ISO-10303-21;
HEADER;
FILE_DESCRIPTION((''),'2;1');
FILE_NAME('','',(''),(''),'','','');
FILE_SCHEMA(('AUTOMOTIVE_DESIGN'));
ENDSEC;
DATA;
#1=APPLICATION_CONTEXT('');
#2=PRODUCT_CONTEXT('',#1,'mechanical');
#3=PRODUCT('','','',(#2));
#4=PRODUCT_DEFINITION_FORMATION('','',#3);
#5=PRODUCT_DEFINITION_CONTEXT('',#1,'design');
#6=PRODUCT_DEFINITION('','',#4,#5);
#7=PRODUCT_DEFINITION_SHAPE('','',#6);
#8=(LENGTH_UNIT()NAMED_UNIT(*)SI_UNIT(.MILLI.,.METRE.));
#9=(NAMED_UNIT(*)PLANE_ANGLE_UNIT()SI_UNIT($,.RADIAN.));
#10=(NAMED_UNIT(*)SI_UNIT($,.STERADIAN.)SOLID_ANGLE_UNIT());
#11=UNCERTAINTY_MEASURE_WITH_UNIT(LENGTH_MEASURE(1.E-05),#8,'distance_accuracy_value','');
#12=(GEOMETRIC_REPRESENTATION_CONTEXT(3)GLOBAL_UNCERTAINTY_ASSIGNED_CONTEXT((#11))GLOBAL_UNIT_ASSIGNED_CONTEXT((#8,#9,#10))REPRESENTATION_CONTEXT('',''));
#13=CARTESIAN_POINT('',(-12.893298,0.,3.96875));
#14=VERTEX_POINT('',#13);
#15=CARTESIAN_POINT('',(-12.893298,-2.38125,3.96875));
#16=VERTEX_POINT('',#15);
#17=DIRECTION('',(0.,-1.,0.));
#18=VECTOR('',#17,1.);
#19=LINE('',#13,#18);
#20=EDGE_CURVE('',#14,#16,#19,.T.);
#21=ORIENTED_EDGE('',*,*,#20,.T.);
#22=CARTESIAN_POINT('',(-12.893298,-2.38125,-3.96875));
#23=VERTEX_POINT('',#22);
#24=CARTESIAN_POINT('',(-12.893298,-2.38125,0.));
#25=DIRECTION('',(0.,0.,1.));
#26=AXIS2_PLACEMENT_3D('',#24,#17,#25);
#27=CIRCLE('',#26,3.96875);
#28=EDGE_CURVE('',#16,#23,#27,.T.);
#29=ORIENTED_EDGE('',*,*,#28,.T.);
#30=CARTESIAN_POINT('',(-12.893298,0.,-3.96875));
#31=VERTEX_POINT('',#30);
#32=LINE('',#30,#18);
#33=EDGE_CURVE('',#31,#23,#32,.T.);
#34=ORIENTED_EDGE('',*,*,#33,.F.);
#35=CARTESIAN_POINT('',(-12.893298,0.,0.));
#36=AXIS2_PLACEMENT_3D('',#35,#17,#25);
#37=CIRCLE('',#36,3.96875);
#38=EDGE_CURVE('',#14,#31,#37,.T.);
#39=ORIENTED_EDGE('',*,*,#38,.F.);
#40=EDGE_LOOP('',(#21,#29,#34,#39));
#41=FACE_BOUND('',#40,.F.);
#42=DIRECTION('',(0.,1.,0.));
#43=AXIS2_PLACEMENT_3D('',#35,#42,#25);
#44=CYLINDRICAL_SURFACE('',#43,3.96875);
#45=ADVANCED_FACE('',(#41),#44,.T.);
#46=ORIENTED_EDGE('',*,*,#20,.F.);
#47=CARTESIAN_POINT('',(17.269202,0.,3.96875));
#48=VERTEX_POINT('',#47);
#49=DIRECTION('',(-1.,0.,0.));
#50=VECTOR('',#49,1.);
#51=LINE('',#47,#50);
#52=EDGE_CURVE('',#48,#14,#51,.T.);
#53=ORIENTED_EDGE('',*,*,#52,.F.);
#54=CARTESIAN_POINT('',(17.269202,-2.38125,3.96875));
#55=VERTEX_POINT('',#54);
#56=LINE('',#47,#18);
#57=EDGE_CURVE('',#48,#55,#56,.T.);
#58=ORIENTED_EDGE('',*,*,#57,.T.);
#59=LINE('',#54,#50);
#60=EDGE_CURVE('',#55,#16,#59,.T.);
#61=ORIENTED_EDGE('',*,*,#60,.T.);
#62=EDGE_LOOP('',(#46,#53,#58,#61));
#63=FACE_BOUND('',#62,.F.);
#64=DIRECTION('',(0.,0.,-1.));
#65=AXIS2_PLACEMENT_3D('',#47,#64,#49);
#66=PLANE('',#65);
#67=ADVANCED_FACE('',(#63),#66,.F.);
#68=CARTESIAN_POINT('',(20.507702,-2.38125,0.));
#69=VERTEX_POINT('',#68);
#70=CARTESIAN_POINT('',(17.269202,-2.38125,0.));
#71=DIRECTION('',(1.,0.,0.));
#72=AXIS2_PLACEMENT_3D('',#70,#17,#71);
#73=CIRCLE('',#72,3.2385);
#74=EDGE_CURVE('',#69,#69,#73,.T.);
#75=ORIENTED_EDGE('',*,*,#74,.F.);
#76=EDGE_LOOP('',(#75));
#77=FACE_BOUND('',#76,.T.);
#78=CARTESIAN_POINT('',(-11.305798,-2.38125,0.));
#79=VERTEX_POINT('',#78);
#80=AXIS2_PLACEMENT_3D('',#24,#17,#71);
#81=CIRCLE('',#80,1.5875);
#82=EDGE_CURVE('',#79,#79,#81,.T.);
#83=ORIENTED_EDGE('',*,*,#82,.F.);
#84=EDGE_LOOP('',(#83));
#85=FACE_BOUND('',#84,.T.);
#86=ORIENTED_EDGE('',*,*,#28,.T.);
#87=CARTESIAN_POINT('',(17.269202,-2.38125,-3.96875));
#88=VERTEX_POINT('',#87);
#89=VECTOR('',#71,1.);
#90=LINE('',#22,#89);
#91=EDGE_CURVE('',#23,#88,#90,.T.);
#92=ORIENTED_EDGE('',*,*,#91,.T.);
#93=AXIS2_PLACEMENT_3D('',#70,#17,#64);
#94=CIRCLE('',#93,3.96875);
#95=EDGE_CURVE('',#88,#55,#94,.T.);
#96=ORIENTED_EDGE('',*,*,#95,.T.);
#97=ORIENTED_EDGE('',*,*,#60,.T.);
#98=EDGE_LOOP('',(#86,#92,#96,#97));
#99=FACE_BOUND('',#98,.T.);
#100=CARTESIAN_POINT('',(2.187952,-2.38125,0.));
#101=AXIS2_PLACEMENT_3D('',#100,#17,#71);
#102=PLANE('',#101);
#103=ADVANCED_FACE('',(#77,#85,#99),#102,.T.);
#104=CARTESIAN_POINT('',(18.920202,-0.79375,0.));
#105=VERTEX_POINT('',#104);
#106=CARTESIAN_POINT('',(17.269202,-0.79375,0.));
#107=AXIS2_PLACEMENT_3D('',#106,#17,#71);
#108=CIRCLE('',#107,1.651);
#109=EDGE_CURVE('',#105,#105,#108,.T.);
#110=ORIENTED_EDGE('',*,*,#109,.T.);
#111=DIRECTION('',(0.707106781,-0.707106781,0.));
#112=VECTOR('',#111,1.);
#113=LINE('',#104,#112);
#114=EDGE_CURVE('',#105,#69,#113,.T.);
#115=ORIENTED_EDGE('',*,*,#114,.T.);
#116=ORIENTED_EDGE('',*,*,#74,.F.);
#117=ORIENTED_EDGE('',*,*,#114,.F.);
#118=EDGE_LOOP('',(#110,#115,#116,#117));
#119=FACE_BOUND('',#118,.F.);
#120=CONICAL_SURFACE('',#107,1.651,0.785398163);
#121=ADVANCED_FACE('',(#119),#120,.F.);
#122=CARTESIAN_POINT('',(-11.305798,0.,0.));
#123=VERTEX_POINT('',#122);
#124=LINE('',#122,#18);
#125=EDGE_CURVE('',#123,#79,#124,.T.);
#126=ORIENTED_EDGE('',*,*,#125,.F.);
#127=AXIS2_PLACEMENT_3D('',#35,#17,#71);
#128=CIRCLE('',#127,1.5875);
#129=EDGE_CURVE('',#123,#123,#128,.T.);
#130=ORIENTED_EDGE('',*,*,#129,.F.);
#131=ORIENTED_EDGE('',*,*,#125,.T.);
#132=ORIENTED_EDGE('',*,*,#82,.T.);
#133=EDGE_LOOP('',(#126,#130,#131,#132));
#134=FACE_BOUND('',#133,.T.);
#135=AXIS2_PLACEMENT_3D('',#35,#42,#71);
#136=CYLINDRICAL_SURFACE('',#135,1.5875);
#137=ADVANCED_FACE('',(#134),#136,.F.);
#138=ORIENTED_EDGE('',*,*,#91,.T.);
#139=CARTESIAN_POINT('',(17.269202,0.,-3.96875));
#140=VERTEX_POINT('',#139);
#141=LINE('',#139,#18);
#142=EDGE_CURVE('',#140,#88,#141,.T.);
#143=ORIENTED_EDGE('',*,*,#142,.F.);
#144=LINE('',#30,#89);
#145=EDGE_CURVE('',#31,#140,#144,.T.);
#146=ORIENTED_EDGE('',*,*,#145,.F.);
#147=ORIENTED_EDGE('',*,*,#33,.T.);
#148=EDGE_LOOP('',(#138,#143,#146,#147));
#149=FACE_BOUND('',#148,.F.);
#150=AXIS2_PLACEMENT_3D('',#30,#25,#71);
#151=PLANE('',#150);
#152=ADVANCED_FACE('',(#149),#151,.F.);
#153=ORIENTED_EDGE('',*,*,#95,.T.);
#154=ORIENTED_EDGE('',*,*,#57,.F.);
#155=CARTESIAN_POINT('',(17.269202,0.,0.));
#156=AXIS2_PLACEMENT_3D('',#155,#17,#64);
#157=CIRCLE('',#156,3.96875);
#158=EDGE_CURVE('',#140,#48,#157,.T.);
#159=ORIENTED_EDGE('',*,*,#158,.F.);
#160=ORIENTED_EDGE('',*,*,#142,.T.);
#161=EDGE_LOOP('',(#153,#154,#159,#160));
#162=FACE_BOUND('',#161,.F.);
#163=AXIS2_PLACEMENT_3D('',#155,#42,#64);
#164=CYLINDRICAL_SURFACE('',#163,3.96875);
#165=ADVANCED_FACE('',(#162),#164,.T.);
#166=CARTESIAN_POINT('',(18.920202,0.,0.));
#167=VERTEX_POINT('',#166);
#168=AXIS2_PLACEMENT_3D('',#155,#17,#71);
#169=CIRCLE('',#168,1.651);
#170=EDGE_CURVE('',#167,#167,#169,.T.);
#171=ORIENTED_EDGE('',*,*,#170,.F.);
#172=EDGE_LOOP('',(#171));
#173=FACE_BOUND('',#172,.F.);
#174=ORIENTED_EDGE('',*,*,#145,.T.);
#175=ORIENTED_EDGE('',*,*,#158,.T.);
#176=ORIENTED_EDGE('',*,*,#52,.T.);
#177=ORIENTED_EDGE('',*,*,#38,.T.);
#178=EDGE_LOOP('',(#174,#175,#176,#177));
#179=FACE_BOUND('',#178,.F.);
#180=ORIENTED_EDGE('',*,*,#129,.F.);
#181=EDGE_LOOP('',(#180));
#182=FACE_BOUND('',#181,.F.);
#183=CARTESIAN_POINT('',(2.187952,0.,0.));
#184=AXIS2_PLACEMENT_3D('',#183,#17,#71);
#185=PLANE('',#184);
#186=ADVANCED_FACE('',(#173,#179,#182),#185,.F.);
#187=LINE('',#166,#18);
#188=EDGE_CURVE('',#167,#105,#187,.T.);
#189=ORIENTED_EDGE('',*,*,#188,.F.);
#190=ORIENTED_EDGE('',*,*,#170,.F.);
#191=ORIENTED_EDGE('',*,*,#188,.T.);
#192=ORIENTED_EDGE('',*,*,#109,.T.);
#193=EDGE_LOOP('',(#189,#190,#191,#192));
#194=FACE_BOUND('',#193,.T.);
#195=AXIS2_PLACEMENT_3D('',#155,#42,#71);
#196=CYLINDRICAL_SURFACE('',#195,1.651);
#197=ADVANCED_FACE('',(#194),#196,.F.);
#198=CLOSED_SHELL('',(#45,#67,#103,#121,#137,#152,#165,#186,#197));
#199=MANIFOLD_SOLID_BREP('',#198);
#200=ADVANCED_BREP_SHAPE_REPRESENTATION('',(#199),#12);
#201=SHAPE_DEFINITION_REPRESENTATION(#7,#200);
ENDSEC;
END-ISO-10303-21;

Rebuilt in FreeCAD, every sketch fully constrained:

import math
import FreeCAD as App
import Part
import Sketcher
Q = App.Units.Quantity


def edges_at(feature, points):
    """Names of the edges that pass closest to the given points."""
    edges = feature.Shape.Edges
    near = lambda p: min(range(len(edges)), key=lambda i: edges[i].distToShape(Part.Vertex(*p))[0])
    return sorted({f"Edge{near(p) + 1}" for p in points})

doc = App.newDocument("Part")
params = doc.addObject("Spreadsheet::Sheet", "Params")
for row, (alias, value) in enumerate([
    ("sketch1_diameter", "0.13 in"),
    ("sketch1_diameter2", "0.125 in"),
    ("sketch1_radius", "0.15625 in"),
    ("sketch1_width", "1.1875 in"),
    ("pad1_length", "0.09375 in"),
    ("chamfer_size", "0.0625 in"),
    ("chamfer_size2", "0.0625 in"),
], start=1):
    params.set(f"A{row}", alias)
    params.set(f"B{row}", "=" + value)
    params.setAlias(f"B{row}", alias)

body = doc.addObject("PartDesign::Body", "Body")

# Sketch on XZ plane
sketch1 = body.newObject("Sketcher::SketchObject", "Sketch")
sketch1.AttachmentSupport = (doc.getObject("XZ_Plane"), [""])
sketch1.MapMode = "FlatFace"
sketch1.addGeometry(Part.LineSegment(App.Vector(17.3, 4, 0), App.Vector(-12.9, 4, 0)), False)
sketch1.addGeometry(Part.ArcOfCircle(Part.Circle(App.Vector(-12.9, 0, 0), App.Vector(0, 0, 1), 4), math.radians(90), math.radians(270)), False)
sketch1.addGeometry(Part.LineSegment(App.Vector(-12.9, -4, 0), App.Vector(17.3, -4, 0)), False)
sketch1.addGeometry(Part.ArcOfCircle(Part.Circle(App.Vector(17.3, 0, 0), App.Vector(0, 0, 1), 4), math.radians(-90), math.radians(90)), False)
sketch1.addGeometry(Part.Circle(App.Vector(-12.9, 0, 0), App.Vector(0, 0, 1), 1.6), False)
sketch1.addGeometry(Part.Circle(App.Vector(17.3, 0, 0), App.Vector(0, 0, 1), 1.7), False)
sketch1.addConstraint(Sketcher.Constraint("Tangent", 0, 2, 1, 1))
sketch1.addConstraint(Sketcher.Constraint("Tangent", 1, 2, 2, 1))
sketch1.addConstraint(Sketcher.Constraint("Tangent", 2, 2, 3, 1))
sketch1.addConstraint(Sketcher.Constraint("Tangent", 3, 2, 0, 1))
sketch1.addConstraint(Sketcher.Constraint("Horizontal", 0))
sketch1.addConstraint(Sketcher.Constraint("Horizontal", 2))
sketch1.addConstraint(Sketcher.Constraint("Coincident", 4, 3, 1, 3))
sketch1.addConstraint(Sketcher.Constraint("Coincident", 5, 3, 3, 3))
sketch1.addConstraint(Sketcher.Constraint("PointOnObject", 1, 3, -1))
sketch1.addConstraint(Sketcher.Constraint("Diameter", 5, Q("0.13 in")))
sketch1.addConstraint(Sketcher.Constraint("Diameter", 4, Q("0.125 in")))
sketch1.addConstraint(Sketcher.Constraint("Radius", 1, Q("0.15625 in")))
sketch1.addConstraint(Sketcher.Constraint("DistanceX", 0, 2, 0, 1, Q("1.1875 in")))
sketch1.addConstraint(Sketcher.Constraint("DistanceX", -1, 1, 3, 3, 17.269202))
sketch1.setExpression("Constraints[9]", "Params.sketch1_diameter")
sketch1.setExpression("Constraints[10]", "Params.sketch1_diameter2")
sketch1.setExpression("Constraints[11]", "Params.sketch1_radius")
sketch1.setExpression("Constraints[12]", "Params.sketch1_width")
pad1 = body.newObject("PartDesign::Pad", "Pad")
pad1.Profile = sketch1
pad1.setExpression("Length", "Params.pad1_length")
doc.recompute()

chamfer = body.newObject("PartDesign::Chamfer", "Chamfer")
chamfer.Base = (pad1, edges_at(pad1, [(15.618, -2.381, 0)]))
chamfer.ChamferType = "Two distances"
chamfer.setExpression("Size", "Params.chamfer_size")
chamfer.setExpression("Size2", "Params.chamfer_size2")

doc.recompute()
